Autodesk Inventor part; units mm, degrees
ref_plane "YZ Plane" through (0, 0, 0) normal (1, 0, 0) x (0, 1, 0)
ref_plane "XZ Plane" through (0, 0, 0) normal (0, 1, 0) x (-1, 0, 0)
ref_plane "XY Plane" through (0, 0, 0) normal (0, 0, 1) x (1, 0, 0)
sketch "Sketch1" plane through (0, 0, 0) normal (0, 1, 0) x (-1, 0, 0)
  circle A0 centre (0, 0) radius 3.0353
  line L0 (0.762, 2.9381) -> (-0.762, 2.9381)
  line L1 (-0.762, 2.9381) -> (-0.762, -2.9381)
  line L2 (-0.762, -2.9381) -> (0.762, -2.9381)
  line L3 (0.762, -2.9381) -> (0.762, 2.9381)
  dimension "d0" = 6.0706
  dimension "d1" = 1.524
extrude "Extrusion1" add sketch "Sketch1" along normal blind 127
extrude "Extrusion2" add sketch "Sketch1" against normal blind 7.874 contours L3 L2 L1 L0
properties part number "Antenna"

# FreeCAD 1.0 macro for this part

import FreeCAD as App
import Part
import Sketcher

V = App.Vector
Q = App.Units.Quantity

doc = App.newDocument("Part")
params = doc.addObject("Spreadsheet::Sheet", "Params")
for row, (alias, value) in enumerate([
    ("sketch1_diameter", "0.239 in"),
    ("pad1_length", "5 in"),
    ("sketch2_width", "0.06 in"),
    ("pad2_length", "0.31 in"),
], start=1):
    params.set(f"A{row}", alias)
    params.set(f"B{row}", "=" + value)
    params.setAlias(f"B{row}", alias)

body = doc.addObject("PartDesign::Body", "Body")

# Sketch on XZ plane
sketch1 = body.newObject("Sketcher::SketchObject", "Sketch")
sketch1.AttachmentSupport = (doc.getObject("XZ_Plane"), [""])
sketch1.MapMode = "FlatFace"
sketch1.addGeometry(Part.Circle(V(0, 0, 0), V(0, 0, 1), 3), False)
sketch1.addConstraint([
    Sketcher.Constraint("Coincident", 0, 3, -1, 1),
    Sketcher.Constraint("Diameter", 0, Q("0.239 in")),
])
sketch1.setExpression("Constraints[1]", "Params.sketch1_diameter")
pad1 = body.newObject("PartDesign::Pad", "Pad")
pad1.Profile = sketch1
pad1.setExpression("Length", "Params.pad1_length")
pad1.Reversed = True

# Sketch on XZ plane
sketch2 = body.newObject("Sketcher::SketchObject", "Sketch001")
sketch2.AttachmentSupport = (doc.getObject("XZ_Plane"), [""])
sketch2.MapMode = "FlatFace"
sketch2.addGeometry([
    Part.LineSegment(V(-0.8, -2.9, 0), V(-0.8, 2.9, 0)),
    Part.LineSegment(V(-0.8, 2.9, 0), V(0.8, 2.9, 0)),
    Part.LineSegment(V(0.8, 2.9, 0), V(0.8, -2.9, 0)),
    Part.LineSegment(V(0.8, -2.9, 0), V(-0.8, -2.9, 0)),
], False)
sketch2.addConstraint([
    Sketcher.Constraint("Coincident", 0, 2, 1, 1),
    Sketcher.Constraint("Coincident", 1, 2, 2, 1),
    Sketcher.Constraint("Coincident", 2, 2, 3, 1),
    Sketcher.Constraint("Coincident", 3, 2, 0, 1),
    Sketcher.Constraint("Vertical", 0),
    Sketcher.Constraint("Horizontal", 1),
    Sketcher.Constraint("Vertical", 2),
    Sketcher.Constraint("Horizontal", 3),
    Sketcher.Constraint("Symmetric", 0, 2, 2, 2, -1, 1),
    Sketcher.Constraint("DistanceX", 1, 1, 1, 2, Q("0.06 in")),
    Sketcher.Constraint("DistanceY", 0, 1, 0, 2, 5.8762),
])
sketch2.setExpression("Constraints[9]", "Params.sketch2_width")
pad2 = body.newObject("PartDesign::Pad", "Pad001")
pad2.Profile = sketch2
pad2.setExpression("Length", "Params.pad2_length")

doc.recompute()
